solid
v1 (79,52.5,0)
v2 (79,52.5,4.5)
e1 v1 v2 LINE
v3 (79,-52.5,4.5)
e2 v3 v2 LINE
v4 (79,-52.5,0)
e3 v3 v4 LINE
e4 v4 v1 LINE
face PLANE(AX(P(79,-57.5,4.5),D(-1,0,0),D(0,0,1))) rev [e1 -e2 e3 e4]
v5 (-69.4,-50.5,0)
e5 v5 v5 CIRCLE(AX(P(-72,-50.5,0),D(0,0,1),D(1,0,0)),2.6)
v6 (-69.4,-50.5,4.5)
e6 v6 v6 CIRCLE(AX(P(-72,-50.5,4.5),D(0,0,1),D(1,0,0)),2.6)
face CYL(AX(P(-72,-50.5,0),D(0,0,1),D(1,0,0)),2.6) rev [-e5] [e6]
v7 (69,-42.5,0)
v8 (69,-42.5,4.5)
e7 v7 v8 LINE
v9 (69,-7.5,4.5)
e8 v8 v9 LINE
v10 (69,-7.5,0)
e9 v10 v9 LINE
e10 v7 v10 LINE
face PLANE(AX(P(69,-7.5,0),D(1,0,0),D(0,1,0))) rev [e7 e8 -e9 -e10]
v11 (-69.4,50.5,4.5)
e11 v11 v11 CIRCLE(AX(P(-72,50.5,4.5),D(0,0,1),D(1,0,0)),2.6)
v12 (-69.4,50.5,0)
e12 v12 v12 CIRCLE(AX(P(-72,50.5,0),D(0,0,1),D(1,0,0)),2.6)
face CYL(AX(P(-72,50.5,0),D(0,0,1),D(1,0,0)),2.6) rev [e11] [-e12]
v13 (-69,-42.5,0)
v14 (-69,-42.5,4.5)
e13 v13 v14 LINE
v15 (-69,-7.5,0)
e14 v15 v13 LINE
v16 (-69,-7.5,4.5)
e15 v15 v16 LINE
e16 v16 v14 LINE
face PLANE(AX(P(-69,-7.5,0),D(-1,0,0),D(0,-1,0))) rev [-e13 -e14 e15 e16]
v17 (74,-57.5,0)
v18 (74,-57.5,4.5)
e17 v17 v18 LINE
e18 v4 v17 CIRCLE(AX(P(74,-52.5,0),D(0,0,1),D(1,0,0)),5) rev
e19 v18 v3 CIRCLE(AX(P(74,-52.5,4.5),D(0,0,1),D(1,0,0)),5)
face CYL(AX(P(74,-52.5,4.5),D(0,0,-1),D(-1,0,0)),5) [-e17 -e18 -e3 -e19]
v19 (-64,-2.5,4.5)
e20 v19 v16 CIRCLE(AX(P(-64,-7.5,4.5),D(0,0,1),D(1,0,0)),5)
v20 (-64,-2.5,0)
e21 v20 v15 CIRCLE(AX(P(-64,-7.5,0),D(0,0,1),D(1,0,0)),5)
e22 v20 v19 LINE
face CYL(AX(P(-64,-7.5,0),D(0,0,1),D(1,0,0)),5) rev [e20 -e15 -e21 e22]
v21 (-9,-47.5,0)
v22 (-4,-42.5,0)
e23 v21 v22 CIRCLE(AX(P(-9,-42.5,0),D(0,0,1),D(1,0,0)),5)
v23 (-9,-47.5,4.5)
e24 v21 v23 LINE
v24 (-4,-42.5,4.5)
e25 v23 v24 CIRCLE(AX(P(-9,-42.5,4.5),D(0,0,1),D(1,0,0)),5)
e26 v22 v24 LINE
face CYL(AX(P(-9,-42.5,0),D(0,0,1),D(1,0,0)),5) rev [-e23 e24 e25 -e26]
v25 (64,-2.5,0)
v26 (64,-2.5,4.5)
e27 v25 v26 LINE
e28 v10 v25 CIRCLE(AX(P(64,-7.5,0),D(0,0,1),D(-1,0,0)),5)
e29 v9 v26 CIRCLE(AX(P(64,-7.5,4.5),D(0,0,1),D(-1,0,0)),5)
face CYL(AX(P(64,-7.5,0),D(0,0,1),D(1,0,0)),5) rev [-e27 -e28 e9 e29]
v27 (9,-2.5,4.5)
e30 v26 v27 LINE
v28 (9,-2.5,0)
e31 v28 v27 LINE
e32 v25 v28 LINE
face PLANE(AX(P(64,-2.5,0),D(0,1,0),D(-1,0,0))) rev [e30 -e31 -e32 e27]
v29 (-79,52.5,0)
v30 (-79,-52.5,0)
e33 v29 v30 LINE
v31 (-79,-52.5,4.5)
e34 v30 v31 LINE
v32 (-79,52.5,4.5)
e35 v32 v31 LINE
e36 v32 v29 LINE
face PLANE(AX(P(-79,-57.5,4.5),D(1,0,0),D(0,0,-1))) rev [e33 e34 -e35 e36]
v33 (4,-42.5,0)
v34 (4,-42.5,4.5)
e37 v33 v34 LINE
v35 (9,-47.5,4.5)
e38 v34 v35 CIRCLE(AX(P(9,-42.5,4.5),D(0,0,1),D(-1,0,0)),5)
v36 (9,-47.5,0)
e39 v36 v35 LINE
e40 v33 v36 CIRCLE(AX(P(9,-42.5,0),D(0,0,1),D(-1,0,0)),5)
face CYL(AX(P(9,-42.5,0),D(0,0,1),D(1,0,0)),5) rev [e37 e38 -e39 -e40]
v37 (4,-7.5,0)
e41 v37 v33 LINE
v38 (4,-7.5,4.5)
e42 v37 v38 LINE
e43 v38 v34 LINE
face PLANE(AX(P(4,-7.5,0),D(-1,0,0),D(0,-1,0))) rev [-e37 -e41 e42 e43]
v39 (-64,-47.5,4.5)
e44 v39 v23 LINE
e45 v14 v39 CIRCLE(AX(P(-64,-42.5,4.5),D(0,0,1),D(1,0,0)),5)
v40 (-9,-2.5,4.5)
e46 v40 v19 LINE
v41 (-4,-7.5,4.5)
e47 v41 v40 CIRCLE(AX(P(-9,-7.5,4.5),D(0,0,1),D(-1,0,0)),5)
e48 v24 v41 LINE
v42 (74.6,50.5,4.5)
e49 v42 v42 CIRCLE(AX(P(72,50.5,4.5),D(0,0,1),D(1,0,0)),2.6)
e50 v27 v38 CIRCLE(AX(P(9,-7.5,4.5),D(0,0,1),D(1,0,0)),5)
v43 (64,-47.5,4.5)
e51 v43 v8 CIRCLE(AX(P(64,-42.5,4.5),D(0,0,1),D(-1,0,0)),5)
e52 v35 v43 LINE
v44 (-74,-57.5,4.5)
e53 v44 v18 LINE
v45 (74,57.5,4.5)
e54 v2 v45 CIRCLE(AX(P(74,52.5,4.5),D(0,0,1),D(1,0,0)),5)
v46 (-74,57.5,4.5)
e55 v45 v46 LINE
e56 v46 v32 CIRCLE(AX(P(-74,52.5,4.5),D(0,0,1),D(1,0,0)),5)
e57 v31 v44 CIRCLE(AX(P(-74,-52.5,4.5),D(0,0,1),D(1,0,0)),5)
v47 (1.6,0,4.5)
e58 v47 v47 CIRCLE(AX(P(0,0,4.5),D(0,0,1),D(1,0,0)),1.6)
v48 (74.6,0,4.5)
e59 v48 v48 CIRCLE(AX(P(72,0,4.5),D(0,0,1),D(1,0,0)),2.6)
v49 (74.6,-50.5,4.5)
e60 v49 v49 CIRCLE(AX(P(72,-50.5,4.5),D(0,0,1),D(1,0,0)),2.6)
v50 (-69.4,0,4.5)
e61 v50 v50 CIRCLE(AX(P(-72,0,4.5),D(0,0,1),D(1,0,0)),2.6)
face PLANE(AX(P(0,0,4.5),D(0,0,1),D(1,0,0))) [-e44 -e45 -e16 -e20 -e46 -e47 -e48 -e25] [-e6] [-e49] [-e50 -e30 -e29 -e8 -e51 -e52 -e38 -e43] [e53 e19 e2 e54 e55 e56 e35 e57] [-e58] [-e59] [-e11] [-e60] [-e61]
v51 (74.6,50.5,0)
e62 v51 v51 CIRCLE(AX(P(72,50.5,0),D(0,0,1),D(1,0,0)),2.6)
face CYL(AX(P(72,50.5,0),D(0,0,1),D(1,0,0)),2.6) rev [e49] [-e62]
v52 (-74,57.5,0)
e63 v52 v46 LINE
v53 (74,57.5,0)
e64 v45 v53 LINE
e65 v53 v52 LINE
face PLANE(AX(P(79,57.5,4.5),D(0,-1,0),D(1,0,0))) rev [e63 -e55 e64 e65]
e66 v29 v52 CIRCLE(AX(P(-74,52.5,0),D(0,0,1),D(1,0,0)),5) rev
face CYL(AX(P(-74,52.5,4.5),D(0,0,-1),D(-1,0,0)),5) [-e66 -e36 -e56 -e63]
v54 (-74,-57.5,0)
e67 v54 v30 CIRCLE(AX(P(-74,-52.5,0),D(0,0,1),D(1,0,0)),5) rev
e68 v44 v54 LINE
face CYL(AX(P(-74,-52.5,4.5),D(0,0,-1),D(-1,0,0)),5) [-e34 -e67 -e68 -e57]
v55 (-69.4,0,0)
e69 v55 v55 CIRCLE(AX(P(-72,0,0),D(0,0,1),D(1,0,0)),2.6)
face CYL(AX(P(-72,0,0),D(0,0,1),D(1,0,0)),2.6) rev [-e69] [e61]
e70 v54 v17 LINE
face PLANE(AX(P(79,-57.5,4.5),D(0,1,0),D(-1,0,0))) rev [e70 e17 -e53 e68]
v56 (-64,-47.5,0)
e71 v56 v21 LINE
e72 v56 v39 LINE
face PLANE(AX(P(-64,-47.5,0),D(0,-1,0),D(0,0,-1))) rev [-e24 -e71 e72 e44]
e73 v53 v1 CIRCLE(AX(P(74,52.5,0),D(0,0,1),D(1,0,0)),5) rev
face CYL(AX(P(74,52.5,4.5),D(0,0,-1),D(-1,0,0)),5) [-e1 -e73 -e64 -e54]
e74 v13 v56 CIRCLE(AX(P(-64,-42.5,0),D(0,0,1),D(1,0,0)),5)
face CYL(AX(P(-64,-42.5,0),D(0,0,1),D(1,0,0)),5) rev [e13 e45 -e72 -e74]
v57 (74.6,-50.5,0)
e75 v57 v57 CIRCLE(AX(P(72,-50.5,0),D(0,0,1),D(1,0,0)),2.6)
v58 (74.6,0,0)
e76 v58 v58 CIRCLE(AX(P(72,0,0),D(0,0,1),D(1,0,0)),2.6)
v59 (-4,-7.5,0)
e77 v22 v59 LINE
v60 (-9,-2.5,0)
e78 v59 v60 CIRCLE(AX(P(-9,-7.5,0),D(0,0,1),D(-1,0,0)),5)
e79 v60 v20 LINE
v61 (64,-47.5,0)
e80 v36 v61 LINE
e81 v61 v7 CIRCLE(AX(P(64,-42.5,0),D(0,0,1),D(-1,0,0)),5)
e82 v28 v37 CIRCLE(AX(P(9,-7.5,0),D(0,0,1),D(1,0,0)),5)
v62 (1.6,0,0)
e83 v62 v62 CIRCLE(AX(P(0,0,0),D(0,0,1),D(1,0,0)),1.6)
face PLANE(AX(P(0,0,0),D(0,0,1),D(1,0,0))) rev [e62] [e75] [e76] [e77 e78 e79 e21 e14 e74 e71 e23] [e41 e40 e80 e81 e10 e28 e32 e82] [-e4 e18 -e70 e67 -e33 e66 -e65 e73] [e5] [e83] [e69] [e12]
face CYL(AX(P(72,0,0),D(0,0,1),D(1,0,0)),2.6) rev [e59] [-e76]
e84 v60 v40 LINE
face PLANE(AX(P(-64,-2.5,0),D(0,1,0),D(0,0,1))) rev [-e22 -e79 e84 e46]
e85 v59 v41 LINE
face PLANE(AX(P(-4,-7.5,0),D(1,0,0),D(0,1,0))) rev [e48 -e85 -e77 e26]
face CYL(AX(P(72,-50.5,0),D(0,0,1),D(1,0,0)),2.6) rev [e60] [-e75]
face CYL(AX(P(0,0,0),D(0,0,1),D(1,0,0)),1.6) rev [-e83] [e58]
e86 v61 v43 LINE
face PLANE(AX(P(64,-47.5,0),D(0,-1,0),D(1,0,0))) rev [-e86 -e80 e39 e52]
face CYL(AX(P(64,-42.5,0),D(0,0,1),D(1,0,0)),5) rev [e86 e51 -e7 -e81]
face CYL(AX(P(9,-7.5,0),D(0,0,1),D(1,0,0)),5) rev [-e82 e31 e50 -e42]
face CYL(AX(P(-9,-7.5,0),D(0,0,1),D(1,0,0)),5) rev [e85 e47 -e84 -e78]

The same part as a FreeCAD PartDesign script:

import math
import FreeCAD as App
import Part
import Sketcher

V = App.Vector


def edges_at(feature, points):
    """Names of the edges that pass closest to the given points."""
    edges = feature.Shape.Edges
    near = lambda p: min(range(len(edges)), key=lambda i: edges[i].distToShape(Part.Vertex(*p))[0])
    return sorted({f"Edge{near(p) + 1}" for p in points})

doc = App.newDocument("Part")
body = doc.addObject("PartDesign::Body", "Body")

# Sketch on XY plane
sketch1 = doc.addObject("Sketcher::SketchObject", "Sketch")
body.addObject(sketch1)
sketch1.AttachmentSupport = (doc.XY_Plane, [""])
sketch1.MapMode = "FlatFace"
sketch1.addGeometry(Part.LineSegment(V(-79, 57.5, 0), V(-79, -57.5, 0)), False)
sketch1.addGeometry(Part.LineSegment(V(-79, -57.5, 0), V(79, -57.5, 0)), False)
sketch1.addGeometry(Part.LineSegment(V(79, -57.5, 0), V(79, 57.5, 0)), False)
sketch1.addGeometry(Part.LineSegment(V(79, 57.5, 0), V(-79, 57.5, 0)), False)
sketch1.addConstraint(Sketcher.Constraint("Coincident", 0, 2, 1, 1))
sketch1.addConstraint(Sketcher.Constraint("Coincident", 1, 2, 2, 1))
sketch1.addConstraint(Sketcher.Constraint("Coincident", 2, 2, 3, 1))
sketch1.addConstraint(Sketcher.Constraint("Coincident", 3, 2, 0, 1))
sketch1.addConstraint(Sketcher.Constraint("Vertical", 0))
sketch1.addConstraint(Sketcher.Constraint("Horizontal", 1))
sketch1.addConstraint(Sketcher.Constraint("Vertical", 2))
sketch1.addConstraint(Sketcher.Constraint("Horizontal", 3))
sketch1.addConstraint(Sketcher.Constraint("Symmetric", 0, 2, 2, 2, -1, 1))
sketch1.addConstraint(Sketcher.Constraint("DistanceX", 1, 1, 1, 2, 158.0))
sketch1.addConstraint(Sketcher.Constraint("DistanceY", 0, 2, 0, 1, 115.0))
pad1 = doc.addObject("PartDesign::Pad", "Pad")
body.addObject(pad1)
pad1.Profile = sketch1
pad1.Length = 4.5

# Sketch on XY plane
sketch2 = doc.addObject("Sketcher::SketchObject", "Sketch001")
body.addObject(sketch2)
sketch2.AttachmentSupport = (doc.XY_Plane, [""])
sketch2.MapMode = "FlatFace"
sketch2.AttachmentOffset = App.Placement(V(0, 0, 4.5), App.Rotation())
sketch2.addGeometry(Part.Circle(V(-72, 50.5, 0), V(0, 0, 1), 2.6), False)
sketch2.addGeometry(Part.Circle(V(72, 50.5, 0), V(0, 0, 1), 2.6), False)
sketch2.addGeometry(Part.Circle(V(72, 0, 0), V(0, 0, 1), 2.6), False)
sketch2.addGeometry(Part.Circle(V(72, -50.5, 0), V(0, 0, 1), 2.6), False)
sketch2.addGeometry(Part.Circle(V(-72, -50.5, 0), V(0, 0, 1), 2.6), False)
sketch2.addGeometry(Part.Circle(V(-72, 0, 0), V(0, 0, 1), 2.6), False)
sketch2.addGeometry(Part.Circle(V(0, 0, 0), V(0, 0, 1), 1.6), False)
sketch2.addGeometry(Part.LineSegment(V(4, -7.5, 0), V(4, -42.5, 0)), False)
sketch2.addGeometry(Part.ArcOfCircle(Part.Circle(V(9, -42.5, 0), V(0, 0, 1), 5), math.radians(180), math.radians(270)), False)
sketch2.addGeometry(Part.LineSegment(V(9, -47.5, 0), V(64, -47.5, 0)), False)
sketch2.addGeometry(Part.ArcOfCircle(Part.Circle(V(64, -42.5, 0), V(0, 0, 1), 5), math.radians(-90), math.radians(0)), False)
sketch2.addGeometry(Part.LineSegment(V(69, -42.5, 0), V(69, -7.5, 0)), False)
sketch2.addGeometry(Part.ArcOfCircle(Part.Circle(V(64, -7.5, 0), V(0, 0, 1), 5), math.radians(0), math.radians(90)), False)
sketch2.addGeometry(Part.LineSegment(V(64, -2.5, 0), V(9, -2.5, 0)), False)
sketch2.addGeometry(Part.ArcOfCircle(Part.Circle(V(9, -7.5, 0), V(0, 0, 1), 5), math.radians(90), math.radians(180)), False)
sketch2.addGeometry(Part.LineSegment(V(-9, -2.5, 0), V(-64, -2.5, 0)), False)
sketch2.addGeometry(Part.ArcOfCircle(Part.Circle(V(-64, -7.5, 0), V(0, 0, 1), 5), math.radians(90), math.radians(180)), False)
sketch2.addGeometry(Part.LineSegment(V(-69, -7.5, 0), V(-69, -42.5, 0)), False)
sketch2.addGeometry(Part.ArcOfCircle(Part.Circle(V(-64, -42.5, 0), V(0, 0, 1), 5), math.radians(180), math.radians(270)), False)
sketch2.addGeometry(Part.LineSegment(V(-64, -47.5, 0), V(-9, -47.5, 0)), False)
sketch2.addGeometry(Part.ArcOfCircle(Part.Circle(V(-9, -42.5, 0), V(0, 0, 1), 5), math.radians(-90), math.radians(0)), False)
sketch2.addGeometry(Part.LineSegment(V(-4, -42.5, 0), V(-4, -7.5, 0)), False)
sketch2.addGeometry(Part.ArcOfCircle(Part.Circle(V(-9, -7.5, 0), V(0, 0, 1), 5), math.radians(0), math.radians(90)), False)
sketch2.addConstraint(Sketcher.Constraint("Tangent", 7, 2, 8, 1))
sketch2.addConstraint(Sketcher.Constraint("Tangent", 8, 2, 9, 1))
sketch2.addConstraint(Sketcher.Constraint("Tangent", 9, 2, 10, 1))
sketch2.addConstraint(Sketcher.Constraint("Tangent", 10, 2, 11, 1))
sketch2.addConstraint(Sketcher.Constraint("Tangent", 11, 2, 12, 1))
sketch2.addConstraint(Sketcher.Constraint("Tangent", 12, 2, 13, 1))
sketch2.addConstraint(Sketcher.Constraint("Tangent", 13, 2, 14, 1))
sketch2.addConstraint(Sketcher.Constraint("Tangent", 14, 2, 7, 1))
sketch2.addConstraint(Sketcher.Constraint("Tangent", 15, 2, 16, 1))
sketch2.addConstraint(Sketcher.Constraint("Tangent", 16, 2, 17, 1))
sketch2.addConstraint(Sketcher.Constraint("Tangent", 17, 2, 18, 1))
sketch2.addConstraint(Sketcher.Constraint("Tangent", 18, 2, 19, 1))
sketch2.addConstraint(Sketcher.Constraint("Tangent", 19, 2, 20, 1))
sketch2.addConstraint(Sketcher.Constraint("Tangent", 20, 2, 21, 1))
sketch2.addConstraint(Sketcher.Constraint("Tangent", 21, 2, 22, 1))
sketch2.addConstraint(Sketcher.Constraint("Tangent", 22, 2, 15, 1))
sketch2.addConstraint(Sketcher.Constraint("Vertical", 7))
sketch2.addConstraint(Sketcher.Constraint("Horizontal", 9))
sketch2.addConstraint(Sketcher.Constraint("Vertical", 11))
sketch2.addConstraint(Sketcher.Constraint("Horizontal", 13))
sketch2.addConstraint(Sketcher.Constraint("Horizontal", 15))
sketch2.addConstraint(Sketcher.Constraint("Vertical", 17))
sketch2.addConstraint(Sketcher.Constraint("Horizontal", 19))
sketch2.addConstraint(Sketcher.Constraint("Vertical", 21))
sketch2.addConstraint(Sketcher.Constraint("Coincident", 6, 3, -1, 1))
sketch2.addConstraint(Sketcher.Constraint("Equal", 0, 1))
sketch2.addConstraint(Sketcher.Constraint("Equal", 1, 2))
sketch2.addConstraint(Sketcher.Constraint("Equal", 2, 3))
sketch2.addConstraint(Sketcher.Constraint("Equal", 3, 4))
sketch2.addConstraint(Sketcher.Constraint("Equal", 4, 5))
sketch2.addConstraint(Sketcher.Constraint("Equal", 8, 10))
sketch2.addConstraint(Sketcher.Constraint("Equal", 10, 12))
sketch2.addConstraint(Sketcher.Constraint("Equal", 12, 14))
sketch2.addConstraint(Sketcher.Constraint("Equal", 14, 16))
sketch2.addConstraint(Sketcher.Constraint("Equal", 16, 18))
sketch2.addConstraint(Sketcher.Constraint("Equal", 18, 20))
sketch2.addConstraint(Sketcher.Constraint("Equal", 20, 22))
sketch2.addConstraint(Sketcher.Constraint("Symmetric", 0, 3, 3, 3, -1, 1))
sketch2.addConstraint(Sketcher.Constraint("Symmetric", 1, 3, 4, 3, -1, 1))
sketch2.addConstraint(Sketcher.Constraint("Symmetric", 2, 3, 5, 3, -1, 1))
sketch2.addConstraint(Sketcher.Constraint("Symmetric", 0, 3, 1, 3, -2))
sketch2.addConstraint(Sketcher.Constraint("Symmetric", 12, 3, 16, 3, -2))
sketch2.addConstraint(Sketcher.Constraint("Symmetric", 8, 3, 20, 3, -2))
sketch2.addConstraint(Sketcher.Constraint("PointOnObject", 2, 3, -1))
sketch2.addConstraint(Sketcher.Constraint("Vertical", 1, 3, 2, 3))
sketch2.addConstraint(Sketcher.Constraint("Radius", 8, 5.0))
sketch2.addConstraint(Sketcher.Constraint("Diameter", 0, 5.2))
sketch2.addConstraint(Sketcher.Constraint("Diameter", 6, 3.2))
sketch2.addConstraint(Sketcher.Constraint("DistanceX", 9, 1, 9, 2, 55.0))
sketch2.addConstraint(Sketcher.Constraint("DistanceY", 7, 2, 7, 1, 35.0))
sketch2.addConstraint(Sketcher.Constraint("DistanceX", 0, 3, -1, 1, 72.0))
sketch2.addConstraint(Sketcher.Constraint("DistanceX", -1, 1, 8, 3, 9.0))
sketch2.addConstraint(Sketcher.Constraint("DistanceY", 3, 3, 1, 3, 101.0))
sketch2.addConstraint(Sketcher.Constraint("DistanceY", 3, 3, 8, 3, 8.0))
pocket1 = doc.addObject("PartDesign::Pocket", "Pocket")
body.addObject(pocket1)
pocket1.Profile = sketch2
pocket1.Length = 4.5
doc.recompute()

fillet = doc.addObject("PartDesign::Fillet", "Fillet")
body.addObject(fillet)
fillet.Base = (pocket1, edges_at(pocket1, [
    (-79, 57.5, 2.25),
    (79, 57.5, 2.25),
    (79, -57.5, 2.25),
    (-79, -57.5, 2.25),
]))
fillet.Radius = 5

doc.recompute()
